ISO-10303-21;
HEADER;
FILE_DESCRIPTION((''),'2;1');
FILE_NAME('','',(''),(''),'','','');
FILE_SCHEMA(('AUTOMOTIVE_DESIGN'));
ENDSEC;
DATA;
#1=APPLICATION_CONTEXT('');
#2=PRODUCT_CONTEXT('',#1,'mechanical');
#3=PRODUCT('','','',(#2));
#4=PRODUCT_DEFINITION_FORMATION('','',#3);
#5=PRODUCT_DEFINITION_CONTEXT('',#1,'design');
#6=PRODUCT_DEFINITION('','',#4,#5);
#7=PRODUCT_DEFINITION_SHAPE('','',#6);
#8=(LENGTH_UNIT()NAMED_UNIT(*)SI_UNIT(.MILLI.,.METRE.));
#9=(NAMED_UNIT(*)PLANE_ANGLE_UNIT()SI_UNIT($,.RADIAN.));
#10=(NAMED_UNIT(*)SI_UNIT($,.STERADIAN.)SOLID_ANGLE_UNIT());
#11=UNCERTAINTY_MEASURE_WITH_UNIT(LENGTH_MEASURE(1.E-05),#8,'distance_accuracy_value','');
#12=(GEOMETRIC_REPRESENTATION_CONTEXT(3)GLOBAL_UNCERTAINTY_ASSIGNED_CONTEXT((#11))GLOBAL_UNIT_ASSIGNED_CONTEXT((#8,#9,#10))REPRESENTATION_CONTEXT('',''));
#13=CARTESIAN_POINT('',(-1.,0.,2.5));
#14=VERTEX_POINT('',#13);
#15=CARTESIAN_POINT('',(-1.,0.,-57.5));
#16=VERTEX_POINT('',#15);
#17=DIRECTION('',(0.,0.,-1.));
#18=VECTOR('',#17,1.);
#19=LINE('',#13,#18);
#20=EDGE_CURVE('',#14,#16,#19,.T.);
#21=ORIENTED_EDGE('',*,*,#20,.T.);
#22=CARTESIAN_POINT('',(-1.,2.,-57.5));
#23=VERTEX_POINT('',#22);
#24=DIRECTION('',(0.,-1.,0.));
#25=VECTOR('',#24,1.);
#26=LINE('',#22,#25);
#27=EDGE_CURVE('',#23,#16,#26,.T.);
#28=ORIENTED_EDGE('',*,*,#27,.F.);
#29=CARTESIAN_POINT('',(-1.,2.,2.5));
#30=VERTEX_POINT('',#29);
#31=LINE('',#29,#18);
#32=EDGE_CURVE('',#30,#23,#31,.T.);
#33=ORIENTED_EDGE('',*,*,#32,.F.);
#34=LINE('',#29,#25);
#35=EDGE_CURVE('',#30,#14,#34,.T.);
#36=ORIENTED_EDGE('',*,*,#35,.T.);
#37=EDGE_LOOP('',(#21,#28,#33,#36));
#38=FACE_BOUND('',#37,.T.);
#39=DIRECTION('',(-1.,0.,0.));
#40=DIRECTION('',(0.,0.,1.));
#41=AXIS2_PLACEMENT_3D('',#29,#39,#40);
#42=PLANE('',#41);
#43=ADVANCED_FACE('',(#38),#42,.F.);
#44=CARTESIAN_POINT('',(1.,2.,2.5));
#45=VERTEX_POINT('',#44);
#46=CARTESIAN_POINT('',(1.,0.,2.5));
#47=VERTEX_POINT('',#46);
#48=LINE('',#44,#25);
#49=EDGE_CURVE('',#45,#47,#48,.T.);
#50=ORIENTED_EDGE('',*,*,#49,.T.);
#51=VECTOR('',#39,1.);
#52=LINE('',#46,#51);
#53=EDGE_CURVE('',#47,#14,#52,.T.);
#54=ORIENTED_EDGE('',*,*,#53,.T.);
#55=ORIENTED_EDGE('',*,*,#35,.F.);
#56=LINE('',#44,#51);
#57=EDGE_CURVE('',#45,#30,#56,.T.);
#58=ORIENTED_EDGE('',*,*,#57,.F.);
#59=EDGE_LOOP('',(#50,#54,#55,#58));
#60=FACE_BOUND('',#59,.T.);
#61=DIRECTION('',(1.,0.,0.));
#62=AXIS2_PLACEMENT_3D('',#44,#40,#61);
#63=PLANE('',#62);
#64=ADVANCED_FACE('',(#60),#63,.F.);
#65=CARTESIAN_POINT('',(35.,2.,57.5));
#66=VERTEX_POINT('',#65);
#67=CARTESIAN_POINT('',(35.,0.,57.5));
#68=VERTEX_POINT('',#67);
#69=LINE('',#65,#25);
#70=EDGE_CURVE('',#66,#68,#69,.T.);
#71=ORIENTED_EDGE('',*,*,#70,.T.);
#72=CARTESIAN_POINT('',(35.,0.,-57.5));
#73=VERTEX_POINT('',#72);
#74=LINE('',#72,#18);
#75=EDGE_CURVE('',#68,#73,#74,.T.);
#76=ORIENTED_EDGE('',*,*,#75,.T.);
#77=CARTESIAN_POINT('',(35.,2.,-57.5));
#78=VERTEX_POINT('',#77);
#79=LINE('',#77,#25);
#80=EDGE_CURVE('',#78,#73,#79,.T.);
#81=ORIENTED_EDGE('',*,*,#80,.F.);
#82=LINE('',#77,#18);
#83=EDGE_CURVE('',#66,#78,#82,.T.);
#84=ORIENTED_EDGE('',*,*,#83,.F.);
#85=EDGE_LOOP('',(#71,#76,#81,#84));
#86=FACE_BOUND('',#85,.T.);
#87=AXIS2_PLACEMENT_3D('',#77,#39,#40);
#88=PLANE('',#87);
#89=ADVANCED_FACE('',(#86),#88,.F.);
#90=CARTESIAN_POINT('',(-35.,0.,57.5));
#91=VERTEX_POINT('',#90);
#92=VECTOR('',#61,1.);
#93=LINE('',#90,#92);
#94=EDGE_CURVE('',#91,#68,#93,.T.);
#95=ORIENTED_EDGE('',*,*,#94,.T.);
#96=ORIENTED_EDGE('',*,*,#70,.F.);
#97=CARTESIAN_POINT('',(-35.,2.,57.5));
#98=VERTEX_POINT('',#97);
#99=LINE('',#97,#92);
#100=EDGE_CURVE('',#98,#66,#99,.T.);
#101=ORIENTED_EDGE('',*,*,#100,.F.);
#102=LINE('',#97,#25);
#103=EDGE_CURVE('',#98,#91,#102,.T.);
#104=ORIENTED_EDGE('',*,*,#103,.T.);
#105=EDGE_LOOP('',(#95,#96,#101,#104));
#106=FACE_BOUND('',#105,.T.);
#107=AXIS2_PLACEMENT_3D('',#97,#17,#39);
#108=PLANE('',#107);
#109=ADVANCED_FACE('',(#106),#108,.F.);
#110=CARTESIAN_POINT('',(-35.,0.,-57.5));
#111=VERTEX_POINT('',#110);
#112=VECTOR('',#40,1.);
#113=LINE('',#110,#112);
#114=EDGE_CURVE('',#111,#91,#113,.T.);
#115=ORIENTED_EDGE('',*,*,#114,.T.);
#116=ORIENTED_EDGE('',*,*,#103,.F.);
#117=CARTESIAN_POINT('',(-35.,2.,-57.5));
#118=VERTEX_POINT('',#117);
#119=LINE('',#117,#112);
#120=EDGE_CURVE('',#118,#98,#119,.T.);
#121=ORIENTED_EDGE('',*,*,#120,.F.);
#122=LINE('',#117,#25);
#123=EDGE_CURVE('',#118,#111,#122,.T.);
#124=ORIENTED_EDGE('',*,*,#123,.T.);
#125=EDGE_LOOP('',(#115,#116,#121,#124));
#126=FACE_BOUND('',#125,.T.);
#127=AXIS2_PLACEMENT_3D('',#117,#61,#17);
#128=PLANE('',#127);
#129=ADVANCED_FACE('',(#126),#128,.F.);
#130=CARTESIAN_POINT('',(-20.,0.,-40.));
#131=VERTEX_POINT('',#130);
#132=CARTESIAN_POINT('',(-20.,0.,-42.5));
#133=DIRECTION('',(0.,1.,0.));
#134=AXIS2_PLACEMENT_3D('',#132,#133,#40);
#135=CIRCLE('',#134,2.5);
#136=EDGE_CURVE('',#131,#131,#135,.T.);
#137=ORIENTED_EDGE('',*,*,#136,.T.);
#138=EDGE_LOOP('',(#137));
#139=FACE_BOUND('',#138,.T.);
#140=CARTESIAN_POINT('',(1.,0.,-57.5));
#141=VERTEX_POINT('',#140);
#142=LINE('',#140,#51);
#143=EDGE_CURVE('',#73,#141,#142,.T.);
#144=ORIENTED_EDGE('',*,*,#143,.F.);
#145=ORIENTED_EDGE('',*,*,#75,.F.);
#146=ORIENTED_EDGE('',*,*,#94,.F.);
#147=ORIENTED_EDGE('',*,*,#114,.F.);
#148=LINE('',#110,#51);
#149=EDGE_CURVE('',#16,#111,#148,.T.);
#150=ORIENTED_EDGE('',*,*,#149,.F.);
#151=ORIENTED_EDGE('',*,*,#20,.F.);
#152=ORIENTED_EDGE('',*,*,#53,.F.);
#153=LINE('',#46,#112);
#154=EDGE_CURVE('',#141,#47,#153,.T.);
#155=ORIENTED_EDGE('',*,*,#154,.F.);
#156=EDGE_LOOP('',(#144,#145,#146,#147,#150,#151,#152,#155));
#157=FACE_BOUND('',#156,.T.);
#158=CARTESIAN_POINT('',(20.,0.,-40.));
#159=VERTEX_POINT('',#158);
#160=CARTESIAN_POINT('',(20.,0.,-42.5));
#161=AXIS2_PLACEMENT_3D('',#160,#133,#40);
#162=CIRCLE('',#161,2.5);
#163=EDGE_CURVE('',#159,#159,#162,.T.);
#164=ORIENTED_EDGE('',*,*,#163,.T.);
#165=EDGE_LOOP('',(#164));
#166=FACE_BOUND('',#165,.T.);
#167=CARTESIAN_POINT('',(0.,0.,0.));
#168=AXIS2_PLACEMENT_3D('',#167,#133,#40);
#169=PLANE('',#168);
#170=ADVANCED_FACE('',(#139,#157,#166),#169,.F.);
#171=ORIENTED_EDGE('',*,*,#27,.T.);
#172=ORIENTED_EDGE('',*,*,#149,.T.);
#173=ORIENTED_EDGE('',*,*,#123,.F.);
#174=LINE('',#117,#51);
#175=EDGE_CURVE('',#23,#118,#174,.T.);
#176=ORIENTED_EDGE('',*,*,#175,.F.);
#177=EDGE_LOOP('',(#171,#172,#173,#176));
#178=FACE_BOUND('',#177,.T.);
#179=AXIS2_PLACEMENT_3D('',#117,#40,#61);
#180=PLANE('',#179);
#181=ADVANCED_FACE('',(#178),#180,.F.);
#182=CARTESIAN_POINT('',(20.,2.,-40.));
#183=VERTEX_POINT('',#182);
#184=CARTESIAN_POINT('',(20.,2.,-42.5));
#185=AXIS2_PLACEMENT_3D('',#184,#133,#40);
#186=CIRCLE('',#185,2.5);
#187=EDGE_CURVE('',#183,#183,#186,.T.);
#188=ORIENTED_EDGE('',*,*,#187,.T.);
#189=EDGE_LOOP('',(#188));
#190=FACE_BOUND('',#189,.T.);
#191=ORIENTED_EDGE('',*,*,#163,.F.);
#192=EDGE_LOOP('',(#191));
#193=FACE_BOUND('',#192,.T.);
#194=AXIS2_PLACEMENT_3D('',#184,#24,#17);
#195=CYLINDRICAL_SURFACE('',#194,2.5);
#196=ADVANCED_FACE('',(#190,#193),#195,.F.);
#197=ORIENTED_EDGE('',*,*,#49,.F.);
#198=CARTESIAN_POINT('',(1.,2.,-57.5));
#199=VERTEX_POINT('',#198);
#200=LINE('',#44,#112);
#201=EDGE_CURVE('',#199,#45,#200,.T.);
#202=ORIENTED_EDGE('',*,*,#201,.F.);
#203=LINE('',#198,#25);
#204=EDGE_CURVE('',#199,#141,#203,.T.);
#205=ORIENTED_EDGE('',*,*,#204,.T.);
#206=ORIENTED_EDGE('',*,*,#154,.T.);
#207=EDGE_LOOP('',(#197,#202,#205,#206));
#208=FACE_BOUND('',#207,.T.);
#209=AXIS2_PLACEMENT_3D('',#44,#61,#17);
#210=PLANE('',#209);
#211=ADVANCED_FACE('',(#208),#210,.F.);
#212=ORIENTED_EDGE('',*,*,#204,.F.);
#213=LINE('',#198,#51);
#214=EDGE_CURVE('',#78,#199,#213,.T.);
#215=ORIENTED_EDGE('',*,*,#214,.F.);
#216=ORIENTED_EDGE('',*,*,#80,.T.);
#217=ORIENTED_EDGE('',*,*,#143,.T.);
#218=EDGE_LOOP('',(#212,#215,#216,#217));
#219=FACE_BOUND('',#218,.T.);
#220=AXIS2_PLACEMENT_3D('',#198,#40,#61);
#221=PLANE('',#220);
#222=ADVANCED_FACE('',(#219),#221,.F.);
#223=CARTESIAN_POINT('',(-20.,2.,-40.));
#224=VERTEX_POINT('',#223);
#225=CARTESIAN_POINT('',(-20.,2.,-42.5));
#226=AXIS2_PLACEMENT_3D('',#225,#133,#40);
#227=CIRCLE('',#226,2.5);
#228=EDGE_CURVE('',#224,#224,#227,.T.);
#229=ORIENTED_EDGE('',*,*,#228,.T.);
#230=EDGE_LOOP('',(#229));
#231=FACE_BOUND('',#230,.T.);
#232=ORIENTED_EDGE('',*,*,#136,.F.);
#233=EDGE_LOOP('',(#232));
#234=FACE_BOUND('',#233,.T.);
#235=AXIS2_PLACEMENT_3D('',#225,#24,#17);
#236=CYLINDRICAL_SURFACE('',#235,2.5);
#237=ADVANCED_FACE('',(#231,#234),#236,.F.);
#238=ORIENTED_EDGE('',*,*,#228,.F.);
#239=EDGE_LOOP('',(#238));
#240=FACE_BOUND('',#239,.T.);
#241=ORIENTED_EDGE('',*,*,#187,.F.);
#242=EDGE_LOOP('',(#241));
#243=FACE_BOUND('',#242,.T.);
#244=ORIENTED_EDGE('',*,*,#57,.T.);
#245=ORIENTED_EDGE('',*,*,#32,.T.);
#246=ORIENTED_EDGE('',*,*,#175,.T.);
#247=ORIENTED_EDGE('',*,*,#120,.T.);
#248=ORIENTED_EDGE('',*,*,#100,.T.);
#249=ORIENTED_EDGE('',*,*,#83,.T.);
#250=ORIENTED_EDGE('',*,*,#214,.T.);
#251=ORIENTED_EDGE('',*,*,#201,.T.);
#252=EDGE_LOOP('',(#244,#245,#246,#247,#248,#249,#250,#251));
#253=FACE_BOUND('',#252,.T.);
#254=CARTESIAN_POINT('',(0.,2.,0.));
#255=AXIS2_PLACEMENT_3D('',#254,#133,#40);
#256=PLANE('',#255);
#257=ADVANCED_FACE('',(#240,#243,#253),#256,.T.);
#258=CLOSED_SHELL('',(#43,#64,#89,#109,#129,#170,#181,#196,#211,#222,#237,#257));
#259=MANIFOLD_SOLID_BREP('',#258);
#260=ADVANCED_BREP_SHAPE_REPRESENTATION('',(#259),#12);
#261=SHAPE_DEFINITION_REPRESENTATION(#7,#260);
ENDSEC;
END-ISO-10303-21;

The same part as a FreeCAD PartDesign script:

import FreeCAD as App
import Part
import Sketcher

V = App.Vector

doc = App.newDocument("Part")
body = doc.addObject("PartDesign::Body", "Body")

# Sketch on XZ plane
sketch1 = doc.addObject("Sketcher::SketchObject", "Sketch")
body.addObject(sketch1)
sketch1.AttachmentSupport = (doc.XZ_Plane, [""])
sketch1.MapMode = "FlatFace"
sketch1.addGeometry([
    Part.LineSegment(V(35, -57.5, 0), V(1, -57.5, 0)),  # 0
    Part.LineSegment(V(1, -57.5, 0), V(1, 2.5, 0)),  # 1
    Part.LineSegment(V(1, 2.5, 0), V(-1, 2.5, 0)),  # 2
    Part.LineSegment(V(-1, 2.5, 0), V(-1, -57.5, 0)),  # 3
    Part.LineSegment(V(-1, -57.5, 0), V(-35, -57.5, 0)),  # 4
    Part.LineSegment(V(-35, -57.5, 0), V(-35, 57.5, 0)),  # 5
    Part.LineSegment(V(-35, 57.5, 0), V(35, 57.5, 0)),  # 6
    Part.LineSegment(V(35, 57.5, 0), V(35, -57.5, 0)),  # 7
    Part.Circle(V(20, -42.5, 0), V(0, 0, 1), 2.5),  # 8
    Part.Circle(V(-20, -42.5, 0), V(0, 0, 1), 2.5),  # 9
], False)
sketch1.addConstraint([
    Sketcher.Constraint("Coincident", 0, 2, 1, 1),
    Sketcher.Constraint("Coincident", 1, 2, 2, 1),
    Sketcher.Constraint("Coincident", 2, 2, 3, 1),
    Sketcher.Constraint("Coincident", 3, 2, 4, 1),
    Sketcher.Constraint("Coincident", 4, 2, 5, 1),
    Sketcher.Constraint("Coincident", 5, 2, 6, 1),
    Sketcher.Constraint("Coincident", 6, 2, 7, 1),
    Sketcher.Constraint("Coincident", 7, 2, 0, 1),
    Sketcher.Constraint("Horizontal", 0),
    Sketcher.Constraint("Vertical", 1),
    Sketcher.Constraint("Horizontal", 2),
    Sketcher.Constraint("Vertical", 3),
    Sketcher.Constraint("Horizontal", 4),
    Sketcher.Constraint("Vertical", 5),
    Sketcher.Constraint("Horizontal", 6),
    Sketcher.Constraint("Vertical", 7),
    Sketcher.Constraint("Equal", 8, 9),
    Sketcher.Constraint("Symmetric", 4, 2, 6, 2, -1, 1),
    Sketcher.Constraint("Symmetric", 8, 3, 9, 3, -2),
    Sketcher.Constraint("Symmetric", 0, 2, 3, 2, -2),
    Sketcher.Constraint("Diameter", 8, 5.0),
    Sketcher.Constraint("DistanceX", 0, 2, 0, 1, 34.0),
    Sketcher.Constraint("DistanceX", 2, 2, 2, 1, 2.0),
    Sketcher.Constraint("DistanceY", 1, 1, 1, 2, 60.0),
    Sketcher.Constraint("DistanceY", 5, 1, 5, 2, 115.0),
    Sketcher.Constraint("DistanceX", -1, 1, 8, 3, 20.0),
    Sketcher.Constraint("DistanceY", 0, 2, 8, 3, 15.0),
])
pad1 = doc.addObject("PartDesign::Pad", "Pad")
body.addObject(pad1)
pad1.Profile = sketch1
pad1.Length = 2
pad1.Reversed = True

doc.recompute()
